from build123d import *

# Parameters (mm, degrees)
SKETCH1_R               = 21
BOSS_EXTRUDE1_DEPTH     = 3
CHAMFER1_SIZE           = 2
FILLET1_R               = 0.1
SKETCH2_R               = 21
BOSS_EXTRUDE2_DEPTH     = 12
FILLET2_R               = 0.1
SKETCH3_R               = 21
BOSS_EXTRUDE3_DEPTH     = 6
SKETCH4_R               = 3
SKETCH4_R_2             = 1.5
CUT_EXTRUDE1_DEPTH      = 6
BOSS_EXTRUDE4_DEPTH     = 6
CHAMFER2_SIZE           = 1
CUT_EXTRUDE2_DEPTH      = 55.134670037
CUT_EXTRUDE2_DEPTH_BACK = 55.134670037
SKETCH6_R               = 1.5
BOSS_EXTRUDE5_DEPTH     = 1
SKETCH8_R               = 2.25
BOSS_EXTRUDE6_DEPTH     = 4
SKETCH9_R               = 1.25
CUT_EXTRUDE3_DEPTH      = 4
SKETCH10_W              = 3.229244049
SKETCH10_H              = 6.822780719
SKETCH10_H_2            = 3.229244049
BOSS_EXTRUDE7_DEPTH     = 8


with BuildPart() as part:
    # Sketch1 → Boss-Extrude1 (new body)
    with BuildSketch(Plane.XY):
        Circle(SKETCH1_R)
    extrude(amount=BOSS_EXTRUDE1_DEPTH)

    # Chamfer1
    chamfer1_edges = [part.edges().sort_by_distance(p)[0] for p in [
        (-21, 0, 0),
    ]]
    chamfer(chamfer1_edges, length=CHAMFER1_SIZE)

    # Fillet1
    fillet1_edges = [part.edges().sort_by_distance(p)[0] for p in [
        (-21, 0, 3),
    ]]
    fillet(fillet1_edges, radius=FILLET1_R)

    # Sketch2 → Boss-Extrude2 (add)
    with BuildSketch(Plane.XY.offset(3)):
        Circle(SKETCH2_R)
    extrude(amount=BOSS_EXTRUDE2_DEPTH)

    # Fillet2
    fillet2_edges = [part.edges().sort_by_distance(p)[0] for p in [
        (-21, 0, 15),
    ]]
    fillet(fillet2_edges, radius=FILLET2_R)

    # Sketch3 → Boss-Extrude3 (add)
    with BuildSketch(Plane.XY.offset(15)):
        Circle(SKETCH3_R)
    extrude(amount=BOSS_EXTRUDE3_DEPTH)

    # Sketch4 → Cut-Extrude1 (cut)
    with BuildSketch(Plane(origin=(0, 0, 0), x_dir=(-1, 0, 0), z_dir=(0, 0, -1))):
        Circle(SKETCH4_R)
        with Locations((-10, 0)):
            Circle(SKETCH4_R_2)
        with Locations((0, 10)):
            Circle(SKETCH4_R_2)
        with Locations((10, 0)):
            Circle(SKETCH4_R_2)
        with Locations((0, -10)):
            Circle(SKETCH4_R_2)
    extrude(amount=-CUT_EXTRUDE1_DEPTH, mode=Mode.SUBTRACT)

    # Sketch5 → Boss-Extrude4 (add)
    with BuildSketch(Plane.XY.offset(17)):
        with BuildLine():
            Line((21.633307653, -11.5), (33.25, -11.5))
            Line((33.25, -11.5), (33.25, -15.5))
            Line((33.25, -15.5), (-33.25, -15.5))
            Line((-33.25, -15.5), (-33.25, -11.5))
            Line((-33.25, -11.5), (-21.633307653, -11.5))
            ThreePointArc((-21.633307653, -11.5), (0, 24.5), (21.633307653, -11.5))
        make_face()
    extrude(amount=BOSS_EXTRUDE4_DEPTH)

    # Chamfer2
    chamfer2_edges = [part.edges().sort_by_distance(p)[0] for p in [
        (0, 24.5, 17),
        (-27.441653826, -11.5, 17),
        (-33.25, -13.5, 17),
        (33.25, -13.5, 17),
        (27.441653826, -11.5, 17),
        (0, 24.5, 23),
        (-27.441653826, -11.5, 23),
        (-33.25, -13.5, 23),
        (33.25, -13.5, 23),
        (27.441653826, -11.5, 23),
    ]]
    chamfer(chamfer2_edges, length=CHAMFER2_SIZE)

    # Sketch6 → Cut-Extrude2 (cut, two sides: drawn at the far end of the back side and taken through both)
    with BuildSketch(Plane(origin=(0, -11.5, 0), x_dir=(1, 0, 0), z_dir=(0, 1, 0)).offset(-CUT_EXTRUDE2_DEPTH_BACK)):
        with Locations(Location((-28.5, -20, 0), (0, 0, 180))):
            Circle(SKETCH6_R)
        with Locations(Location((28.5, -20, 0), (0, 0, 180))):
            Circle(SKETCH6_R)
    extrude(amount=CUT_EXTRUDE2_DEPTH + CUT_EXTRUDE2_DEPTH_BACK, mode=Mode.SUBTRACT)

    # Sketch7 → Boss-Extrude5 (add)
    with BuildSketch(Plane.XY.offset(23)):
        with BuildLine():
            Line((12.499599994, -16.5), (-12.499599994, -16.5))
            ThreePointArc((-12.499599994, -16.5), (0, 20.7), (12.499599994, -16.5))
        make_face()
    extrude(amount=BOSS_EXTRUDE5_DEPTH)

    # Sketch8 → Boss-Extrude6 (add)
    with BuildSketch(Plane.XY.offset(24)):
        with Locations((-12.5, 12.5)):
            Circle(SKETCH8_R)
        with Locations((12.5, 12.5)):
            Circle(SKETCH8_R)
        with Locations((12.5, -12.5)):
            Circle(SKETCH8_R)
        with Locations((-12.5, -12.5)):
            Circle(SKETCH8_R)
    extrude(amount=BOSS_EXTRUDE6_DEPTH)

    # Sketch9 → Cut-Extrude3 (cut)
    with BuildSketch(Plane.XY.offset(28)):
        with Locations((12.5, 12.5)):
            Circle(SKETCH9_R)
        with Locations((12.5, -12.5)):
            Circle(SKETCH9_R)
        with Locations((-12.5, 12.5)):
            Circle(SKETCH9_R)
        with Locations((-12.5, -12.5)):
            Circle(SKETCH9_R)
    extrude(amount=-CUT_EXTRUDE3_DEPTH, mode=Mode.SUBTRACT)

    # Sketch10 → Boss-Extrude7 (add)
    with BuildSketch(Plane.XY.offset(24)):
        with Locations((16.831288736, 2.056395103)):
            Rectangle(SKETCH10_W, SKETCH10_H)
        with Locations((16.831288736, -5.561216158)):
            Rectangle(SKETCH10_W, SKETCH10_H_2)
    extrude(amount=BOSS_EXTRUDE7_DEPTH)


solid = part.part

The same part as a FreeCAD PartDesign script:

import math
import FreeCAD as App
import Part
import Sketcher

V = App.Vector
Q = App.Units.Quantity


def edges_at(feature, points):
    """Names of the edges that pass closest to the given points."""
    edges = feature.Shape.Edges
    near = lambda p: min(range(len(edges)), key=lambda i: edges[i].distToShape(Part.Vertex(*p))[0])
    return sorted({f"Edge{near(p) + 1}" for p in points})

doc = App.newDocument("Part")
params = doc.addObject("Spreadsheet::Sheet", "Params")
for row, (alias, value) in enumerate([
    ("sketch1_diameter", "42 mm"),
    ("pad1_length", "3 mm"),
    ("chamfer_size", "2 mm"),
    ("fillet_radius", "0.1 mm"),
    ("sketch2_diameter", "42 mm"),
    ("pad2_length", "12 mm"),
    ("fillet2_radius", "0.1 mm"),
    ("sketch3_diameter", "42 mm"),
    ("pad3_length", "6 mm"),
    ("sketch4_diameter", "6 mm"),
    ("sketch4_diameter2", "3 mm"),
    ("pocket1_length", "6 mm"),
    ("sketch5_radius", "24.5 mm"),
    ("sketch5_height", "4 mm"),
    ("sketch5_width", "66.5 mm"),
    ("pad4_length", "6 mm"),
    ("chamfer2_size", "1 mm"),
    ("sketch6_diameter", "3 mm"),
    ("sketch7_radius", "20.7 mm"),
    ("pad5_length", "1 mm"),
    ("sketch8_diameter", "4.5 mm"),
    ("pad6_length", "4 mm"),
    ("sketch9_diameter", "2.5 mm"),
    ("pocket3_length", "4 mm"),
    ("pad7_length", "8 mm"),
], start=1):
    params.set(f"A{row}", alias)
    params.set(f"B{row}", "=" + value)
    params.setAlias(f"B{row}", alias)

body = doc.addObject("PartDesign::Body", "Body")

sketch1 = body.newObject("Sketcher::SketchObject", "Sketch")
sketch1.AttachmentSupport = (doc.getObject("XY_Plane"), [""])
sketch1.MapMode = "FlatFace"
sketch1.addGeometry(Part.Circle(V(0, 0, 0), V(0, 0, 1), 21), False)
sketch1.addConstraint([
    Sketcher.Constraint("Coincident", 0, 3, -1, 1),
    Sketcher.Constraint("Diameter", 0, Q("42 mm")),
])
sketch1.setExpression("Constraints[1]", "Params.sketch1_diameter")
pad1 = body.newObject("PartDesign::Pad", "Pad")
pad1.Profile = sketch1
pad1.setExpression("Length", "Params.pad1_length")
doc.recompute()

chamfer = body.newObject("PartDesign::Chamfer", "Chamfer")
chamfer.Base = (pad1, edges_at(pad1, [(-21, 0, 0)]))
chamfer.setExpression("Size", "Params.chamfer_size")
doc.recompute()

fillet = body.newObject("PartDesign::Fillet", "Fillet")
fillet.Base = (chamfer, edges_at(chamfer, [(-21, 0, 3)]))
fillet.setExpression("Radius", "Params.fillet_radius")

sketch2 = body.newObject("Sketcher::SketchObject", "Sketch001")
sketch2.AttachmentSupport = (doc.getObject("XY_Plane"), [""])
sketch2.MapMode = "FlatFace"
sketch2.AttachmentOffset = App.Placement(V(0, 0, 3), App.Rotation())
sketch2.addGeometry(Part.Circle(V(0, 0, 0), V(0, 0, 1), 21), False)
sketch2.addConstraint([
    Sketcher.Constraint("Coincident", 0, 3, -1, 1),
    Sketcher.Constraint("Diameter", 0, Q("42 mm")),
])
sketch2.setExpression("Constraints[1]", "Params.sketch2_diameter")
pad2 = body.newObject("PartDesign::Pad", "Pad001")
pad2.Profile = sketch2
pad2.setExpression("Length", "Params.pad2_length")
doc.recompute()

fillet2 = body.newObject("PartDesign::Fillet", "Fillet001")
fillet2.Base = (pad2, edges_at(pad2, [(-21, 0, 15)]))
fillet2.setExpression("Radius", "Params.fillet2_radius")

sketch3 = body.newObject("Sketcher::SketchObject", "Sketch002")
sketch3.AttachmentSupport = (doc.getObject("XY_Plane"), [""])
sketch3.MapMode = "FlatFace"
sketch3.AttachmentOffset = App.Placement(V(0, 0, 15), App.Rotation())
sketch3.addGeometry(Part.Circle(V(0, 0, 0), V(0, 0, 1), 21), False)
sketch3.addConstraint([
    Sketcher.Constraint("Coincident", 0, 3, -1, 1),
    Sketcher.Constraint("Diameter", 0, Q("42 mm")),
])
sketch3.setExpression("Constraints[1]", "Params.sketch3_diameter")
pad3 = body.newObject("PartDesign::Pad", "Pad002")
pad3.Profile = sketch3
pad3.setExpression("Length", "Params.pad3_length")

sketch4 = body.newObject("Sketcher::SketchObject", "Sketch003")
sketch4.AttachmentSupport = (doc.getObject("XY_Plane"), [""])
sketch4.MapMode = "FlatFace"
sketch4.addGeometry([
    Part.Circle(V(0, 0, 0), V(0, 0, 1), 3),
    Part.Circle(V(10, 0, 0), V(0, 0, 1), 1.5),
    Part.Circle(V(0, 10, 0), V(0, 0, 1), 1.5),
    Part.Circle(V(-10, 0, 0), V(0, 0, 1), 1.5),
    Part.Circle(V(0, -10, 0), V(0, 0, 1), 1.5),
], False)
sketch4.addConstraint([
    Sketcher.Constraint("Coincident", 0, 3, -1, 1),
    Sketcher.Constraint("Equal", 1, 2),
    Sketcher.Constraint("Equal", 2, 3),
    Sketcher.Constraint("Equal", 3, 4),
    Sketcher.Constraint("Symmetric", 1, 3, 3, 3, -1, 1),
    Sketcher.Constraint("Symmetric", 2, 3, 4, 3, -1, 1),
    Sketcher.Constraint("PointOnObject", 1, 3, -1),
    Sketcher.Constraint("PointOnObject", 2, 3, -2),
    Sketcher.Constraint("Diameter", 0, Q("6 mm")),
    Sketcher.Constraint("Diameter", 1, Q("3 mm")),
    Sketcher.Constraint("DistanceX", -1, 1, 1, 3, Q("10 mm")),
    Sketcher.Constraint("DistanceY", -1, 1, 2, 3, Q("10 mm")),
])
sketch4.setExpression("Constraints[8]", "Params.sketch4_diameter")
sketch4.setExpression("Constraints[9]", "Params.sketch4_diameter2")
pocket1 = body.newObject("PartDesign::Pocket", "Pocket")
pocket1.Profile = sketch4
pocket1.setExpression("Length", "Params.pocket1_length")
pocket1.Reversed = True

sketch5 = body.newObject("Sketcher::SketchObject", "Sketch004")
sketch5.AttachmentSupport = (doc.getObject("XY_Plane"), [""])
sketch5.MapMode = "FlatFace"
sketch5.AttachmentOffset = App.Placement(V(0, 0, 17), App.Rotation())
sketch5.addGeometry([
    Part.LineSegment(V(33.2, -11.5, 0), V(21.6, -11.5, 0)),
    Part.ArcOfCircle(Part.Circle(V(0, 0, 0), V(0, 0, 1), 24.5), math.radians(-28), math.radians(208)),
    Part.LineSegment(V(-21.6, -11.5, 0), V(-33.2, -11.5, 0)),
    Part.LineSegment(V(-33.2, -11.5, 0), V(-33.2, -15.5, 0)),
    Part.LineSegment(V(-33.2, -15.5, 0), V(33.2, -15.5, 0)),
    Part.LineSegment(V(33.2, -15.5, 0), V(33.2, -11.5, 0)),
], False)
sketch5.addConstraint([
    Sketcher.Constraint("Coincident", 0, 2, 1, 1),
    Sketcher.Constraint("Coincident", 1, 2, 2, 1),
    Sketcher.Constraint("Coincident", 2, 2, 3, 1),
    Sketcher.Constraint("Coincident", 3, 2, 4, 1),
    Sketcher.Constraint("Coincident", 4, 2, 5, 1),
    Sketcher.Constraint("Coincident", 5, 2, 0, 1),
    Sketcher.Constraint("Horizontal", 0),
    Sketcher.Constraint("Horizontal", 2),
    Sketcher.Constraint("Vertical", 3),
    Sketcher.Constraint("Horizontal", 4),
    Sketcher.Constraint("Vertical", 5),
    Sketcher.Constraint("Coincident", 1, 3, -1, 1),
    Sketcher.Constraint("Symmetric", 2, 2, 5, 2, -2),
    Sketcher.Constraint("Radius", 1, Q("24.5 mm")),
    Sketcher.Constraint("DistanceY", 3, 2, 3, 1, Q("4 mm")),
    Sketcher.Constraint("DistanceX", 4, 1, 4, 2, Q("66.5 mm")),
    Sketcher.Constraint("DistanceY", 0, 2, -1, 1, Q("11.5 mm")),
])
sketch5.setExpression("Constraints[13]", "Params.sketch5_radius")
sketch5.setExpression("Constraints[14]", "Params.sketch5_height")
sketch5.setExpression("Constraints[15]", "Params.sketch5_width")
pad4 = body.newObject("PartDesign::Pad", "Pad003")
pad4.Profile = sketch5
pad4.setExpression("Length", "Params.pad4_length")
doc.recompute()

chamfer2 = body.newObject("PartDesign::Chamfer", "Chamfer001")
chamfer2.Base = (pad4, edges_at(pad4, [
    (0, 24.5, 17),
    (-27.442, -11.5, 17),
    (-33.25, -13.5, 17),
    (33.25, -13.5, 17),
    (27.442, -11.5, 17),
    (0, 24.5, 23),
    (-27.442, -11.5, 23),
    (-33.25, -13.5, 23),
    (33.25, -13.5, 23),
    (27.442, -11.5, 23),
]))
chamfer2.setExpression("Size", "Params.chamfer2_size")

sketch6 = body.newObject("Sketcher::SketchObject", "Sketch005")
sketch6.AttachmentSupport = (doc.getObject("XZ_Plane"), [""])
sketch6.MapMode = "FlatFace"
sketch6.AttachmentOffset = App.Placement(V(0, 0, 11.5), App.Rotation())
sketch6.addGeometry([
    Part.Circle(V(-28.5, 20, 0), V(0, 0, 1), 1.5),
    Part.Circle(V(28.5, 20, 0), V(0, 0, 1), 1.5),
], False)
sketch6.addConstraint([
    Sketcher.Constraint("Equal", 0, 1),
    Sketcher.Constraint("Symmetric", 0, 3, 1, 3, -2),
    Sketcher.Constraint("Diameter", 0, Q("3 mm")),
    Sketcher.Constraint("DistanceY", -1, 1, 0, 3, Q("20 mm")),
    Sketcher.Constraint("DistanceX", 0, 3, 1, 3, Q("57 mm")),
])
sketch6.setExpression("Constraints[2]", "Params.sketch6_diameter")
pocket2 = body.newObject("PartDesign::Pocket", "Pocket001")
pocket2.Profile = sketch6
pocket2.Type = "ThroughAll"
pocket2.Midplane = True

sketch7 = body.newObject("Sketcher::SketchObject", "Sketch006")
sketch7.AttachmentSupport = (doc.getObject("XY_Plane"), [""])
sketch7.MapMode = "FlatFace"
sketch7.AttachmentOffset = App.Placement(V(0, 0, 23), App.Rotation())
sketch7.addGeometry([
    Part.LineSegment(V(-12, -16, 0), V(12, -16, 0)),
    Part.ArcOfCircle(Part.Circle(V(0, 0, 0), V(0, 0, 1), 21), math.radians(-53), math.radians(233)),
], False)
sketch7.addConstraint([
    Sketcher.Constraint("Coincident", 0, 1, 1, 2),
    Sketcher.Constraint("Coincident", 1, 1, 0, 2),
    Sketcher.Constraint("Horizontal", 0),
    Sketcher.Constraint("Coincident", 1, 3, -1, 1),
    Sketcher.Constraint("Radius", 1, Q("20.7 mm")),
    Sketcher.Constraint("DistanceY", 0, 1, -1, 1, Q("16.5 mm")),
])
sketch7.setExpression("Constraints[4]", "Params.sketch7_radius")
pad5 = body.newObject("PartDesign::Pad", "Pad004")
pad5.Profile = sketch7
pad5.setExpression("Length", "Params.pad5_length")

sketch8 = body.newObject("Sketcher::SketchObject", "Sketch007")
sketch8.AttachmentSupport = (doc.getObject("XY_Plane"), [""])
sketch8.MapMode = "FlatFace"
sketch8.AttachmentOffset = App.Placement(V(0, 0, 24), App.Rotation())
sketch8.addGeometry([
    Part.Circle(V(-12.5, 12.5, 0), V(0, 0, 1), 2.2),
    Part.Circle(V(12.5, 12.5, 0), V(0, 0, 1), 2.2),
    Part.Circle(V(12.5, -12.5, 0), V(0, 0, 1), 2.2),
    Part.Circle(V(-12.5, -12.5, 0), V(0, 0, 1), 2.2),
], False)
sketch8.addConstraint([
    Sketcher.Constraint("Equal", 0, 1),
    Sketcher.Constraint("Equal", 1, 2),
    Sketcher.Constraint("Equal", 2, 3),
    Sketcher.Constraint("Symmetric", 0, 3, 2, 3, -1, 1),
    Sketcher.Constraint("Symmetric", 1, 3, 3, 3, -1, 1),
    Sketcher.Constraint("Symmetric", 0, 3, 1, 3, -2),
    Sketcher.Constraint("Diameter", 0, Q("4.5 mm")),
    Sketcher.Constraint("DistanceX", 0, 3, 1, 3, Q("25 mm")),
    Sketcher.Constraint("DistanceY", 2, 3, 1, 3, Q("25 mm")),
])
sketch8.setExpression("Constraints[6]", "Params.sketch8_diameter")
pad6 = body.newObject("PartDesign::Pad", "Pad005")
pad6.Profile = sketch8
pad6.setExpression("Length", "Params.pad6_length")

sketch9 = body.newObject("Sketcher::SketchObject", "Sketch008")
sketch9.AttachmentSupport = (doc.getObject("XY_Plane"), [""])
sketch9.MapMode = "FlatFace"
sketch9.AttachmentOffset = App.Placement(V(0, 0, 28), App.Rotation())
sketch9.addGeometry([
    Part.Circle(V(12.5, 12.5, 0), V(0, 0, 1), 1.2),
    Part.Circle(V(12.5, -12.5, 0), V(0, 0, 1), 1.2),
    Part.Circle(V(-12.5, 12.5, 0), V(0, 0, 1), 1.2),
    Part.Circle(V(-12.5, -12.5, 0), V(0, 0, 1), 1.2),
], False)
sketch9.addConstraint([
    Sketcher.Constraint("Equal", 0, 1),
    Sketcher.Constraint("Equal", 1, 2),
    Sketcher.Constraint("Equal", 2, 3),
    Sketcher.Constraint("Symmetric", 1, 3, 2, 3, -1, 1),
    Sketcher.Constraint("Symmetric", 0, 3, 3, 3, -1, 1),
    Sketcher.Constraint("Symmetric", 0, 3, 2, 3, -2),
    Sketcher.Constraint("Diameter", 0, Q("2.5 mm")),
    Sketcher.Constraint("DistanceY", 1, 3, 0, 3, Q("25 mm")),
    Sketcher.Constraint("DistanceX", 2, 3, 0, 3, Q("25 mm")),
])
sketch9.setExpression("Constraints[6]", "Params.sketch9_diameter")
pocket3 = body.newObject("PartDesign::Pocket", "Pocket002")
pocket3.Profile = sketch9
pocket3.setExpression("Length", "Params.pocket3_length")

sketch10 = body.newObject("Sketcher::SketchObject", "Sketch009")
sketch10.AttachmentSupport = (doc.getObject("XY_Plane"), [""])
sketch10.MapMode = "FlatFace"
sketch10.AttachmentOffset = App.Placement(V(0, 0, 24), App.Rotation())
sketch10.addGeometry([
    Part.LineSegment(V(15.2, 5.5, 0), V(15.2, -1.4, 0)),
    Part.LineSegment(V(15.2, -1.4, 0), V(18.4, -1.4, 0)),
    Part.LineSegment(V(18.4, -1.4, 0), V(18.4, 5.5, 0)),
    Part.LineSegment(V(18.4, 5.5, 0), V(15.2, 5.5, 0)),
    Part.LineSegment(V(15.2, -3.9, 0), V(15.2, -7.2, 0)),
    Part.LineSegment(V(15.2, -7.2, 0), V(18.4, -7.2, 0)),
    Part.LineSegment(V(18.4, -7.2, 0), V(18.4, -3.9, 0)),
    Part.LineSegment(V(18.4, -3.9, 0), V(15.2, -3.9, 0)),
], False)
sketch10.addConstraint([
    Sketcher.Constraint("Coincident", 0, 2, 1, 1),
    Sketcher.Constraint("Coincident", 1, 2, 2, 1),
    Sketcher.Constraint("Coincident", 2, 2, 3, 1),
    Sketcher.Constraint("Coincident", 3, 2, 0, 1),
    Sketcher.Constraint("Coincident", 4, 2, 5, 1),
    Sketcher.Constraint("Coincident", 5, 2, 6, 1),
    Sketcher.Constraint("Coincident", 6, 2, 7, 1),
    Sketcher.Constraint("Coincident", 7, 2, 4, 1),
    Sketcher.Constraint("Vertical", 0),
    Sketcher.Constraint("Horizontal", 1),
    Sketcher.Constraint("Vertical", 2),
    Sketcher.Constraint("Horizontal", 3),
    Sketcher.Constraint("Vertical", 4),
    Sketcher.Constraint("Horizontal", 5),
    Sketcher.Constraint("Vertical", 6),
    Sketcher.Constraint("Horizontal", 7),
    Sketcher.Constraint("Vertical", 3, 2, 4, 2),
    Sketcher.Constraint("Vertical", 2, 2, 5, 2),
    Sketcher.Constraint("Equal", 7, 4),
    Sketcher.Constraint("DistanceY", 0, 2, 0, 1, Q("6.822781 mm")),
    Sketcher.Constraint("DistanceY", 6, 2, 1, 2, Q("2.591599 mm")),
    Sketcher.Constraint("DistanceX", 1, 1, 1, 2, Q("3.229244 mm")),
    Sketcher.Constraint("DistanceX", -1, 1, 1, 2, Q("18.445911 mm")),
    Sketcher.Constraint("DistanceY", 4, 2, -1, 1, Q("7.175838 mm")),
])
pad7 = body.newObject("PartDesign::Pad", "Pad006")
pad7.Profile = sketch10
pad7.setExpression("Length", "Params.pad7_length")

doc.recompute()
